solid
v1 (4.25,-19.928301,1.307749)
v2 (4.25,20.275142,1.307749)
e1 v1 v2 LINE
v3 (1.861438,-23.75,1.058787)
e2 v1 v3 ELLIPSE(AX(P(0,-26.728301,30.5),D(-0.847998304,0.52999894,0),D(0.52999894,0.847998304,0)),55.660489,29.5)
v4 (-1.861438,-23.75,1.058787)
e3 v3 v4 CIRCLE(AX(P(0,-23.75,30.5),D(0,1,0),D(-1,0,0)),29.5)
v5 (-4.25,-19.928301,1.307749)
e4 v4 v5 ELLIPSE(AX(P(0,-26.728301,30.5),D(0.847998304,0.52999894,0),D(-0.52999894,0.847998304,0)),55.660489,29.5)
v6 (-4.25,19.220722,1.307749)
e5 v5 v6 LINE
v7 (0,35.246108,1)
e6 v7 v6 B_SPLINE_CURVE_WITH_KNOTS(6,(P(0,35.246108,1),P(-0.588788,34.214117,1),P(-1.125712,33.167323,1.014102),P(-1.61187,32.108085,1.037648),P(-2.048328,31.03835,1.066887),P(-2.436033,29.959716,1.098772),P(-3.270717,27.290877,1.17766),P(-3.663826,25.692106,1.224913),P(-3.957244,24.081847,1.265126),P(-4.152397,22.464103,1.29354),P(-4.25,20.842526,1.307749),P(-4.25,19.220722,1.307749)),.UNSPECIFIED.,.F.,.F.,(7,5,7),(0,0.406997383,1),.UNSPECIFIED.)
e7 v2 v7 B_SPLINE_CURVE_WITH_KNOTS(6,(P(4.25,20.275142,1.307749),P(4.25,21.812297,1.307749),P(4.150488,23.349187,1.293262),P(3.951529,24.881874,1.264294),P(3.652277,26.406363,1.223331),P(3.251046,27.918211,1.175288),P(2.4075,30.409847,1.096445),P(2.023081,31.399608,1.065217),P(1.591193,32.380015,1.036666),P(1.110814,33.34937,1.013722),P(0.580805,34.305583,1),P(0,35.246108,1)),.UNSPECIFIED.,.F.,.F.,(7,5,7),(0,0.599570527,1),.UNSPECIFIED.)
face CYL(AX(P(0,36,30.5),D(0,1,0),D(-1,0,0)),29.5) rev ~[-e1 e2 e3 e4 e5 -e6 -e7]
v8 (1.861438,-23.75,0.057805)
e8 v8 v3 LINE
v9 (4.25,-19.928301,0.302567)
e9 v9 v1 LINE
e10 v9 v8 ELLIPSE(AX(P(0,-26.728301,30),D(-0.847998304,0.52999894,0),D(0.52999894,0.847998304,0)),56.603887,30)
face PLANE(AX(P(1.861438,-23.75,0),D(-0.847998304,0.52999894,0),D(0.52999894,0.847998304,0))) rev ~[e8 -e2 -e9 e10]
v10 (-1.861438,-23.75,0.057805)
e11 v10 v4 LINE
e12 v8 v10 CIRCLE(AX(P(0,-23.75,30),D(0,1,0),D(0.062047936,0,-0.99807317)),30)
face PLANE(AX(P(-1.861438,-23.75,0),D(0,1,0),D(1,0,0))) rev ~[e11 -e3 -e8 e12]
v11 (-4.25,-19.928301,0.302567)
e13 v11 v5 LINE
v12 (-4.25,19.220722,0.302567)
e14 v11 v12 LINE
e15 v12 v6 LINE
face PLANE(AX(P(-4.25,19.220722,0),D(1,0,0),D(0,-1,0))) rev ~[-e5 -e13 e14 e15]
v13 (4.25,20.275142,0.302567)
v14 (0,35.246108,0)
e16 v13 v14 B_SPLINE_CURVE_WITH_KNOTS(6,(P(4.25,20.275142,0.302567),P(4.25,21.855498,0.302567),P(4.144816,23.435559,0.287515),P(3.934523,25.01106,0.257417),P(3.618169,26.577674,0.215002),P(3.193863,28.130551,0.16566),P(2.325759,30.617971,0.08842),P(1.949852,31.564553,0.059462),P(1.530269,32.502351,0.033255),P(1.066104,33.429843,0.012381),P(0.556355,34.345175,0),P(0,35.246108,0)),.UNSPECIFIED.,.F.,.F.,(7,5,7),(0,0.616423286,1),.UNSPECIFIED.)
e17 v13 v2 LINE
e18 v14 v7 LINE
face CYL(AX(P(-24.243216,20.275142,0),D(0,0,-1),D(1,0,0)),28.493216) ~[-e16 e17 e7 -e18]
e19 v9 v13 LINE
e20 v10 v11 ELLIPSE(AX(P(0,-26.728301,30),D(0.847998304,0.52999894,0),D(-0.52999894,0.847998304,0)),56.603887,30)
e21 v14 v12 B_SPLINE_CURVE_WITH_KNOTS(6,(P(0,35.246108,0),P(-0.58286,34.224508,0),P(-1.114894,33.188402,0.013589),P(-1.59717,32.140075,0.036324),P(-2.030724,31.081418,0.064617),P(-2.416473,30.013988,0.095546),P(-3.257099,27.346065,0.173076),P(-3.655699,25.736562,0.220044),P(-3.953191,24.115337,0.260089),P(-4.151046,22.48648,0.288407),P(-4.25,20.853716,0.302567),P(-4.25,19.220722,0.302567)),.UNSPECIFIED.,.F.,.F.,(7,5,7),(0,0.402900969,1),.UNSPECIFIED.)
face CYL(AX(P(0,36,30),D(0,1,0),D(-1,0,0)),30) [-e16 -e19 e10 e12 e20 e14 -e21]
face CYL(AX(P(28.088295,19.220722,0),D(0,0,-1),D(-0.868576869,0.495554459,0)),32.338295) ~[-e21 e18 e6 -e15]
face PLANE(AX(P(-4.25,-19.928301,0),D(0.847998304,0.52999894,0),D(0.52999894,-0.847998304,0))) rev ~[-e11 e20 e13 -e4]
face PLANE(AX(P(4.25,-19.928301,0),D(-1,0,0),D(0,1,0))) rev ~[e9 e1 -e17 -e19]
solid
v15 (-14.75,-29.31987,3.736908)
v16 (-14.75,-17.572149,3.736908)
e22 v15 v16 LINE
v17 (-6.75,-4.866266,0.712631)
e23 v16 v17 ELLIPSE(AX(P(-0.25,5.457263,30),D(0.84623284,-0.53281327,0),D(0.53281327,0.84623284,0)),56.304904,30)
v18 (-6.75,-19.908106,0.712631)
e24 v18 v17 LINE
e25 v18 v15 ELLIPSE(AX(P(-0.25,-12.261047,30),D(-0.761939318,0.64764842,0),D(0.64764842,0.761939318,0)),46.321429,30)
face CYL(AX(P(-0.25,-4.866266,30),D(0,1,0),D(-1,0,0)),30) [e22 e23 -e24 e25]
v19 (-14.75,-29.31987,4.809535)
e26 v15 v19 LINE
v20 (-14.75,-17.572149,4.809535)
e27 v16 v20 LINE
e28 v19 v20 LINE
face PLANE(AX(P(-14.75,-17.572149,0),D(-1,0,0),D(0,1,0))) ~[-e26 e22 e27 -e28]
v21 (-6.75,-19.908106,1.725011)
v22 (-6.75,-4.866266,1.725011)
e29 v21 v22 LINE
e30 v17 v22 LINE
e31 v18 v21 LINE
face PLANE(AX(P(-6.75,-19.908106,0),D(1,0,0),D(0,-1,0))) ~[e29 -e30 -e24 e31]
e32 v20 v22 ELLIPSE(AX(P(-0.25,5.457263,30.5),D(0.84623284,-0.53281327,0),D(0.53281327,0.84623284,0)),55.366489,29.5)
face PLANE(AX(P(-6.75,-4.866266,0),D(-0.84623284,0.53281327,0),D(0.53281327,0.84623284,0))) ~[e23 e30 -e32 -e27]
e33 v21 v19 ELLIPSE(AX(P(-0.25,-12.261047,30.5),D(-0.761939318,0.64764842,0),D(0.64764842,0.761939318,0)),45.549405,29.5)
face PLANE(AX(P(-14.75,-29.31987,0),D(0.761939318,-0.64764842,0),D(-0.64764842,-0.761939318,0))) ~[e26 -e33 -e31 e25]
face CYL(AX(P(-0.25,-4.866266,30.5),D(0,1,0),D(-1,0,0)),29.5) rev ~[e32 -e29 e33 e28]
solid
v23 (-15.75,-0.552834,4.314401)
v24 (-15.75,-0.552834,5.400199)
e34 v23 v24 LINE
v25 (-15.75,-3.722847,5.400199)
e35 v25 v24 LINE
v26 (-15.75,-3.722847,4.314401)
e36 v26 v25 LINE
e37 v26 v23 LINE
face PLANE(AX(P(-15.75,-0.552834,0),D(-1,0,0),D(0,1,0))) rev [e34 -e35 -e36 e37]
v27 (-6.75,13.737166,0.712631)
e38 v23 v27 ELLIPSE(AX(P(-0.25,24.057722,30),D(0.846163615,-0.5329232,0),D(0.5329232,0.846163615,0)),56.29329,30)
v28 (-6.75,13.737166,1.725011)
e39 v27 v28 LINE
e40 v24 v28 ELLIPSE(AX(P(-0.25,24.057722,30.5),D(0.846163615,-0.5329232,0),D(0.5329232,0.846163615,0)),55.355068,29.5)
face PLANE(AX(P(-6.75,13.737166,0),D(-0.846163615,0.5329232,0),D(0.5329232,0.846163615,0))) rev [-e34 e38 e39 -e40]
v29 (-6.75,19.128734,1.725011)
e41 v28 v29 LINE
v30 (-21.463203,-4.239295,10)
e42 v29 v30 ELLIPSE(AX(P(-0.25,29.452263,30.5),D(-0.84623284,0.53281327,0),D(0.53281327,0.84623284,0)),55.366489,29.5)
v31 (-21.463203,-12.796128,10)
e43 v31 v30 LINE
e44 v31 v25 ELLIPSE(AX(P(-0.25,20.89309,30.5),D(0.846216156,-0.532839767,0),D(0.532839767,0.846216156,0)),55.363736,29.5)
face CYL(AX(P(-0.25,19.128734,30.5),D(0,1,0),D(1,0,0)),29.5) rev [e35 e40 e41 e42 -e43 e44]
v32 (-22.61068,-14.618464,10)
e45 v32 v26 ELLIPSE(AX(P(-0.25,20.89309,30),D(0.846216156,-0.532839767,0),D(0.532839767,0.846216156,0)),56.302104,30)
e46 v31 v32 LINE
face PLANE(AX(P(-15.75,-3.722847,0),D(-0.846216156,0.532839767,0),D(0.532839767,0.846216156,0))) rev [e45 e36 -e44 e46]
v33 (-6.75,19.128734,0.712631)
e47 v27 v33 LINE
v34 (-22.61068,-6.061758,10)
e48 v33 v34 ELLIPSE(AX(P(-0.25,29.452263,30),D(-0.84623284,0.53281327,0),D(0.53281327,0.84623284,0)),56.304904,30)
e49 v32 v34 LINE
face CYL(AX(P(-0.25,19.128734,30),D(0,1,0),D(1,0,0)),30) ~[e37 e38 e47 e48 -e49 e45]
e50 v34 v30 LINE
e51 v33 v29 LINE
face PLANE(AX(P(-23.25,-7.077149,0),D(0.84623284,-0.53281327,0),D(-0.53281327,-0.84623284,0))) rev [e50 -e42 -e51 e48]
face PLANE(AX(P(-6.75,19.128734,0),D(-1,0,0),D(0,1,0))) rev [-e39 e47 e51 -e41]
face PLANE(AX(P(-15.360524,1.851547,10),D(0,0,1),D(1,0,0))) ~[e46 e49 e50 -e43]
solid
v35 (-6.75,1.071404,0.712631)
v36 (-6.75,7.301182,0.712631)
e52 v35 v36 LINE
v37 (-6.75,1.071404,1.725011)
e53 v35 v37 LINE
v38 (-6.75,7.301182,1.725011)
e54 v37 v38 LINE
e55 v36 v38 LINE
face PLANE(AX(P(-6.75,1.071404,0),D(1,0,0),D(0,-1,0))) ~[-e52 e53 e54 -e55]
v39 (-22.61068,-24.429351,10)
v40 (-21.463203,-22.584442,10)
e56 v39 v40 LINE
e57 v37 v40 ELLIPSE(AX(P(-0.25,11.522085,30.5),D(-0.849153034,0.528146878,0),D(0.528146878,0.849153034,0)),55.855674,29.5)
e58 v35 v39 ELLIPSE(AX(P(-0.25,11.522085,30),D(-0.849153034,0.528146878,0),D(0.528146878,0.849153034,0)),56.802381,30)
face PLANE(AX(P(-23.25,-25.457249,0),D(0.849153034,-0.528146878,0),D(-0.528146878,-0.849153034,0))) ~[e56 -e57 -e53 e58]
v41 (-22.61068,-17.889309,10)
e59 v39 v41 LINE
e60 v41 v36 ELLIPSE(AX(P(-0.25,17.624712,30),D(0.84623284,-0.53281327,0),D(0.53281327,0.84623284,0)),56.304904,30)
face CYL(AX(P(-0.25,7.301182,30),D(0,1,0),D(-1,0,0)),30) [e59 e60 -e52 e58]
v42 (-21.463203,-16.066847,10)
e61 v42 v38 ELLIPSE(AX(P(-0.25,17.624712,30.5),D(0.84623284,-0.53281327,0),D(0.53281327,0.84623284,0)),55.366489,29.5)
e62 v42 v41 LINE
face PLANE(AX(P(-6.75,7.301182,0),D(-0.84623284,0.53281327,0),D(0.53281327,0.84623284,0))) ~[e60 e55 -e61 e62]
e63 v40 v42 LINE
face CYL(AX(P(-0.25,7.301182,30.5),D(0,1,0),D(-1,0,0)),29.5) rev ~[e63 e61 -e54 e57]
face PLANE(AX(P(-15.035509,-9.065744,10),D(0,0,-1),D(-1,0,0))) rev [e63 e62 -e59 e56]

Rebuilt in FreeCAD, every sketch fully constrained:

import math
import FreeCAD as App
import Part
import Sketcher

V = App.Vector
Q = App.Units.Quantity

doc = App.newDocument("Part")
body = doc.addObject("PartDesign::Body", "Body")

sketch1 = body.newObject("Sketcher::SketchObject", "Sketch")
sketch1.AttachmentSupport = (doc.getObject("XY_Plane"), [""])
sketch1.MapMode = "FlatFace"
sketch1.addGeometry([
    Part.LineSegment(V(-4.2, 19.2, 0), V(-4.2, -19.9, 0)),
    Part.LineSegment(V(-4.2, -19.9, 0), V(-1.9, -23.8, 0)),
    Part.LineSegment(V(-1.9, -23.8, 0), V(1.9, -23.8, 0)),
    Part.LineSegment(V(1.9, -23.8, 0), V(4.2, -19.9, 0)),
    Part.LineSegment(V(4.2, -19.9, 0), V(4.2, 20.3, 0)),
    Part.ArcOfCircle(Part.Circle(V(-24.2, 20.3, 0), V(0, 0, 1), 28.5), math.radians(0), math.radians(32)),
    Part.ArcOfCircle(Part.Circle(V(28.1, 19.2, 0), V(0, 0, 1), 32.3), math.radians(150), math.radians(180)),
], False)
sketch1.addConstraint([
    Sketcher.Constraint("Coincident", 0, 2, 1, 1),
    Sketcher.Constraint("Coincident", 1, 2, 2, 1),
    Sketcher.Constraint("Coincident", 2, 2, 3, 1),
    Sketcher.Constraint("Coincident", 3, 2, 4, 1),
    Sketcher.Constraint("Tangent", 4, 2, 5, 1),
    Sketcher.Constraint("Coincident", 5, 2, 6, 1),
    Sketcher.Constraint("Tangent", 6, 2, 0, 1),
    Sketcher.Constraint("Vertical", 0),
    Sketcher.Constraint("Horizontal", 2),
    Sketcher.Constraint("Vertical", 4),
    Sketcher.Constraint("Symmetric", 0, 2, 3, 2, -2),
    Sketcher.Constraint("PointOnObject", 5, 2, -2),
    Sketcher.Constraint("Equal", 1, 3),
    Sketcher.Constraint("DistanceX", 0, 2, 3, 2, Q("8.5 mm")),
    Sketcher.Constraint("DistanceY", 1, 2, -1, 1, Q("23.75 mm")),
    Sketcher.Constraint("Radius", 5, Q("28.493216 mm")),
    Sketcher.Constraint("Radius", 6, Q("32.338295 mm")),
    Sketcher.Constraint("DistanceY", 0, 2, -1, 1, Q("19.928301 mm")),
    Sketcher.Constraint("Distance", 1, Q("4.50673 mm")),
    Sketcher.Constraint("DistanceY", 0, 2, 0, 1, Q("39.149023 mm")),
])
pad1 = body.newObject("PartDesign::Pad", "Pad")
pad1.Profile = sketch1
pad1.Length = 10

sketch2 = body.newObject("Sketcher::SketchObject", "Sketch001")
sketch2.AttachmentSupport = (doc.getObject("XZ_Plane"), [""])
sketch2.MapMode = "FlatFace"
sketch2.AttachmentOffset = App.Placement(V(0, 0, -36), App.Rotation())
sketch2.addGeometry([
    Part.Circle(V(0, 30, 0), V(0, 0, 1), 40),
    Part.Circle(V(0, 30, 0), V(0, 0, 1), 30),
], False)
sketch2.addConstraint([
    Sketcher.Constraint("Coincident", 1, 3, 0, 3),
    Sketcher.Constraint("PointOnObject", 0, 3, -2),
    Sketcher.Constraint("Diameter", 1, Q("60 mm")),
    Sketcher.Constraint("DistanceY", -1, 1, 0, 3, Q("30 mm")),
    Sketcher.Constraint("Diameter", 0, Q("79.640392 mm")),
])
pocket1 = body.newObject("PartDesign::Pocket", "Pocket")
pocket1.Profile = sketch2
pocket1.Type = "ThroughAll"
pocket1.Reversed = True

sketch3 = body.newObject("Sketcher::SketchObject", "Sketch002")
sketch3.AttachmentSupport = (doc.getObject("XZ_Plane"), [""])
sketch3.MapMode = "FlatFace"
sketch3.AttachmentOffset = App.Placement(V(0, 0, -36), App.Rotation())
sketch3.addGeometry(Part.Circle(V(0, 30, 0), V(0, 0, 1), 30), False)
sketch3.addConstraint([
    Sketcher.Constraint("PointOnObject", 0, 3, -2),
    Sketcher.Constraint("Diameter", 0, Q("59 mm")),
    Sketcher.Constraint("DistanceY", -1, 1, 0, 3, Q("30.5 mm")),
])
pocket2 = body.newObject("PartDesign::Pocket", "Pocket001")
pocket2.Profile = sketch3
pocket2.Type = "ThroughAll"
pocket2.Reversed = True
body2 = doc.addObject("PartDesign::Body", "Body001")

sketch4 = body2.newObject("Sketcher::SketchObject", "Sketch003")
sketch4.AttachmentSupport = (doc.getObject("XY_Plane001"), [""])
sketch4.MapMode = "FlatFace"
sketch4.addGeometry([
    Part.LineSegment(V(7, -5, 0), V(7, -20, 0)),
    Part.LineSegment(V(7, -20, 0), V(15, -29, 0)),
    Part.LineSegment(V(15, -29, 0), V(15, -18, 0)),
    Part.LineSegment(V(15, -18, 0), V(7, -5, 0)),
], False)
sketch4.addConstraint([
    Sketcher.Constraint("Coincident", 0, 2, 1, 1),
    Sketcher.Constraint("Coincident", 1, 2, 2, 1),
    Sketcher.Constraint("Coincident", 2, 2, 3, 1),
    Sketcher.Constraint("Coincident", 3, 2, 0, 1),
    Sketcher.Constraint("Vertical", 0),
    Sketcher.Constraint("Vertical", 2),
    Sketcher.Constraint("DistanceX", 0, 2, 1, 2, Q("8 mm")),
    Sketcher.Constraint("DistanceX", -1, 1, 0, 2, Q("6.75 mm")),
    Sketcher.Constraint("DistanceY", 0, 2, 0, 1, Q("15.041839 mm")),
    Sketcher.Constraint("DistanceY", 2, 1, 2, 2, Q("11.747722 mm")),
    Sketcher.Constraint("Distance", 1, Q("12.352381 mm")),
    Sketcher.Constraint("DistanceY", 1, 2, -1, 1, Q("29.31987 mm")),
])
pad2 = body2.newObject("PartDesign::Pad", "Pad001")
pad2.Profile = sketch4
pad2.Length = 10

sketch5 = body2.newObject("Sketcher::SketchObject", "Sketch004")
sketch5.AttachmentSupport = (doc.getObject("XZ_Plane001"), [""])
sketch5.MapMode = "FlatFace"
sketch5.AttachmentOffset = App.Placement(V(0, 0, 4.866266), App.Rotation())
sketch5.addGeometry([
    Part.Circle(V(0, 30, 0), V(0, 0, 1), 51),
    Part.Circle(V(0, 30, 0), V(0, 0, 1), 30),
], False)
sketch5.addConstraint([
    Sketcher.Constraint("Coincident", 1, 3, 0, 3),
    Sketcher.Constraint("Diameter", 1, Q("60 mm")),
    Sketcher.Constraint("DistanceY", -1, 1, 0, 3, Q("30 mm")),
    Sketcher.Constraint("Diameter", 0, Q("101.948988 mm")),
    Sketcher.Constraint("DistanceX", -1, 1, 0, 3, Q("0.25 mm")),
])
pocket3 = body2.newObject("PartDesign::Pocket", "Pocket002")
pocket3.Profile = sketch5
pocket3.Type = "ThroughAll"
pocket3.Reversed = True

sketch6 = body2.newObject("Sketcher::SketchObject", "Sketch005")
sketch6.AttachmentSupport = (doc.getObject("XZ_Plane001"), [""])
sketch6.MapMode = "FlatFace"
sketch6.AttachmentOffset = App.Placement(V(0, 0, 4.866266), App.Rotation())
sketch6.addGeometry(Part.Circle(V(0, 30, 0), V(0, 0, 1), 30), False)
sketch6.addConstraint([
    Sketcher.Constraint("Diameter", 0, Q("59 mm")),
    Sketcher.Constraint("DistanceY", -1, 1, 0, 3, Q("30.5 mm")),
    Sketcher.Constraint("DistanceX", -1, 1, 0, 3, Q("0.25 mm")),
])
pocket4 = body2.newObject("PartDesign::Pocket", "Pocket003")
pocket4.Profile = sketch6
pocket4.Type = "ThroughAll"
pocket4.Reversed = True
body3 = doc.addObject("PartDesign::Body", "Body002")
doc.recompute()

mirroring = doc.addObject("Part::Mirroring", "Mirroring")
mirroring.Source = body2
mirroring.Base = V(0, 0, 0)
mirroring.Normal = V(1, 0, 0)
body3.BaseFeature = mirroring
doc.recompute()
body4 = doc.addObject("PartDesign::Body", "Body003")

sketch7 = body4.newObject("Sketcher::SketchObject", "Sketch006")
sketch7.AttachmentSupport = (doc.getObject("XY_Plane003"), [""])
sketch7.MapMode = "FlatFace"
sketch7.addGeometry([
    Part.LineSegment(V(23, -19, 0), V(7, 7, 0)),
    Part.LineSegment(V(7, 7, 0), V(7, 1, 0)),
    Part.LineSegment(V(7, 1, 0), V(23, -25, 0)),
    Part.LineSegment(V(23, -25, 0), V(23, -19, 0)),
], False)
sketch7.addConstraint([
    Sketcher.Constraint("Coincident", 0, 2, 1, 1),
    Sketcher.Constraint("Coincident", 1, 2, 2, 1),
    Sketcher.Constraint("Coincident", 2, 2, 3, 1),
    Sketcher.Constraint("Coincident", 3, 2, 0, 1),
    Sketcher.Constraint("Vertical", 1),
    Sketcher.Constraint("Vertical", 3),
    Sketcher.Constraint("DistanceX", 1, 2, 2, 2, Q("16.5 mm")),
    Sketcher.Constraint("DistanceX", -1, 1, 0, 2, Q("6.75 mm")),
    Sketcher.Constraint("DistanceY", 1, 2, 1, 1, Q("6.229779 mm")),
    Sketcher.Constraint("DistanceY", 3, 1, 3, 2, Q("6.552549 mm")),
    Sketcher.Constraint("DistanceY", 3, 2, -1, 1, Q("18.9047 mm")),
    Sketcher.Constraint("Distance", 2, Q("31.241309 mm")),
])
pad3 = body4.newObject("PartDesign::Pad", "Pad002")
pad3.Profile = sketch7
pad3.Length = 10

sketch8 = body4.newObject("Sketcher::SketchObject", "Sketch007")
sketch8.AttachmentSupport = (doc.getObject("XZ_Plane003"), [""])
sketch8.MapMode = "FlatFace"
sketch8.AttachmentOffset = App.Placement(V(0, 0, -7.301182), App.Rotation())
sketch8.addGeometry([
    Part.Circle(V(0, 30, 0), V(0, 0, 1), 40),
    Part.Circle(V(0, 30, 0), V(0, 0, 1), 30),
], False)
sketch8.addConstraint([
    Sketcher.Constraint("Coincident", 1, 3, 0, 3),
    Sketcher.Constraint("Diameter", 1, Q("60 mm")),
    Sketcher.Constraint("DistanceY", -1, 1, 0, 3, Q("30 mm")),
    Sketcher.Constraint("DistanceX", -1, 1, 0, 3, Q("0.25 mm")),
    Sketcher.Constraint("Diameter", 0, Q("80.494366 mm")),
])
pocket5 = body4.newObject("PartDesign::Pocket", "Pocket004")
pocket5.Profile = sketch8
pocket5.Type = "ThroughAll"
pocket5.Reversed = True

sketch9 = body4.newObject("Sketcher::SketchObject", "Sketch008")
sketch9.AttachmentSupport = (doc.getObject("XZ_Plane003"), [""])
sketch9.MapMode = "FlatFace"
sketch9.AttachmentOffset = App.Placement(V(0, 0, -7.301182), App.Rotation())
sketch9.addGeometry(Part.Circle(V(0, 30, 0), V(0, 0, 1), 30), False)
sketch9.addConstraint([
    Sketcher.Constraint("Diameter", 0, Q("59 mm")),
    Sketcher.Constraint("DistanceY", -1, 1, 0, 3, Q("30.5 mm")),
    Sketcher.Constraint("DistanceX", -1, 1, 0, 3, Q("0.25 mm")),
])
pocket6 = body4.newObject("PartDesign::Pocket", "Pocket005")
pocket6.Profile = sketch9
pocket6.Type = "ThroughAll"
pocket6.Reversed = True
body5 = doc.addObject("PartDesign::Body", "Body004")
doc.recompute()

mirroring2 = doc.addObject("Part::Mirroring", "Mirroring001")
mirroring2.Source = body4
mirroring2.Base = V(0, 0, 0)
mirroring2.Normal = V(1, 0, 0)
body5.BaseFeature = mirroring2
doc.recompute()
body6 = doc.addObject("PartDesign::Body", "Body005")

sketch10 = body6.newObject("Sketcher::SketchObject", "Sketch009")
sketch10.AttachmentSupport = (doc.getObject("XY_Plane005"), [""])
sketch10.MapMode = "FlatFace"
sketch10.addGeometry([
    Part.LineSegment(V(6.8, 19.1, 0), V(6.8, 13.7, 0)),
    Part.LineSegment(V(6.8, 13.7, 0), V(15.8, -0.6, 0)),
    Part.LineSegment(V(15.8, -0.6, 0), V(15.8, -3.7, 0)),
    Part.LineSegment(V(15.8, -3.7, 0), V(23.2, -15.6, 0)),
    Part.LineSegment(V(23.2, -15.6, 0), V(23.2, -7.1, 0)),
    Part.LineSegment(V(23.2, -7.1, 0), V(6.8, 19.1, 0)),
], False)
sketch10.addConstraint([
    Sketcher.Constraint("Coincident", 0, 2, 1, 1),
    Sketcher.Constraint("Coincident", 1, 2, 2, 1),
    Sketcher.Constraint("Coincident", 2, 2, 3, 1),
    Sketcher.Constraint("Coincident", 3, 2, 4, 1),
    Sketcher.Constraint("Coincident", 4, 2, 5, 1),
    Sketcher.Constraint("Coincident", 5, 2, 0, 1),
    Sketcher.Constraint("Vertical", 0),
    Sketcher.Constraint("Vertical", 2),
    Sketcher.Constraint("Vertical", 4),
    Sketcher.Constraint("DistanceX", 0, 2, 1, 2, Q("9 mm")),
    Sketcher.Constraint("DistanceX", 2, 2, 3, 2, Q("7.5 mm")),
    Sketcher.Constraint("DistanceX", -1, 1, 0, 2, Q("6.75 mm")),
    Sketcher.Constraint("DistanceY", 1, 2, 0, 2, Q("14.29 mm")),
    Sketcher.Constraint("DistanceY", 4, 2, 2, 2, Q("3.354302 mm")),
    Sketcher.Constraint("DistanceY", 0, 2, 0, 1, Q("5.391567 mm")),
    Sketcher.Constraint("DistanceY", 2, 2, 2, 1, Q("3.170013 mm")),
    Sketcher.Constraint("DistanceY", 4, 1, 4, 2, Q("8.556636 mm")),
    Sketcher.Constraint("DistanceY", 4, 2, -1, 1, Q("7.077149 mm")),
])
pad4 = body6.newObject("PartDesign::Pad", "Pad003")
pad4.Profile = sketch10
pad4.Length = 10

sketch11 = body6.newObject("Sketcher::SketchObject", "Sketch010")
sketch11.AttachmentSupport = (doc.getObject("XZ_Plane005"), [""])
sketch11.MapMode = "FlatFace"
sketch11.AttachmentOffset = App.Placement(V(0, 0, -19.128734), App.Rotation())
sketch11.addGeometry([
    Part.Circle(V(0, 30, 0), V(0, 0, 1), 43),
    Part.Circle(V(0, 30, 0), V(0, 0, 1), 30),
], False)
sketch11.addConstraint([
    Sketcher.Constraint("Coincident", 1, 3, 0, 3),
    Sketcher.Constraint("Diameter", 1, Q("60 mm")),
    Sketcher.Constraint("DistanceY", -1, 1, 0, 3, Q("30 mm")),
    Sketcher.Constraint("DistanceX", -1, 1, 0, 3, Q("0.25 mm")),
    Sketcher.Constraint("Diameter", 0, Q("85.296646 mm")),
])
pocket7 = body6.newObject("PartDesign::Pocket", "Pocket006")
pocket7.Profile = sketch11
pocket7.Type = "ThroughAll"
pocket7.Reversed = True

sketch12 = body6.newObject("Sketcher::SketchObject", "Sketch011")
sketch12.AttachmentSupport = (doc.getObject("XZ_Plane005"), [""])
sketch12.MapMode = "FlatFace"
sketch12.AttachmentOffset = App.Placement(V(0, 0, -19.128734), App.Rotation())
sketch12.addGeometry(Part.Circle(V(0, 30, 0), V(0, 0, 1), 30), False)
sketch12.addConstraint([
    Sketcher.Constraint("Diameter", 0, Q("59 mm")),
    Sketcher.Constraint("DistanceY", -1, 1, 0, 3, Q("30.5 mm")),
    Sketcher.Constraint("DistanceX", -1, 1, 0, 3, Q("0.25 mm")),
])
pocket8 = body6.newObject("PartDesign::Pocket", "Pocket007")
pocket8.Profile = sketch12
pocket8.Type = "ThroughAll"
pocket8.Reversed = True
body7 = doc.addObject("PartDesign::Body", "Body006")
doc.recompute()

mirroring3 = doc.addObject("Part::Mirroring", "Mirroring002")
mirroring3.Source = body6
mirroring3.Base = V(0, 0, 0)
mirroring3.Normal = V(1, 0, 0)
body7.BaseFeature = mirroring3
doc.recompute()
body2.Visibility = False
body4.Visibility = False
body6.Visibility = False
mirroring.Visibility = False
mirroring2.Visibility = False
mirroring3.Visibility = False

doc.recompute()
